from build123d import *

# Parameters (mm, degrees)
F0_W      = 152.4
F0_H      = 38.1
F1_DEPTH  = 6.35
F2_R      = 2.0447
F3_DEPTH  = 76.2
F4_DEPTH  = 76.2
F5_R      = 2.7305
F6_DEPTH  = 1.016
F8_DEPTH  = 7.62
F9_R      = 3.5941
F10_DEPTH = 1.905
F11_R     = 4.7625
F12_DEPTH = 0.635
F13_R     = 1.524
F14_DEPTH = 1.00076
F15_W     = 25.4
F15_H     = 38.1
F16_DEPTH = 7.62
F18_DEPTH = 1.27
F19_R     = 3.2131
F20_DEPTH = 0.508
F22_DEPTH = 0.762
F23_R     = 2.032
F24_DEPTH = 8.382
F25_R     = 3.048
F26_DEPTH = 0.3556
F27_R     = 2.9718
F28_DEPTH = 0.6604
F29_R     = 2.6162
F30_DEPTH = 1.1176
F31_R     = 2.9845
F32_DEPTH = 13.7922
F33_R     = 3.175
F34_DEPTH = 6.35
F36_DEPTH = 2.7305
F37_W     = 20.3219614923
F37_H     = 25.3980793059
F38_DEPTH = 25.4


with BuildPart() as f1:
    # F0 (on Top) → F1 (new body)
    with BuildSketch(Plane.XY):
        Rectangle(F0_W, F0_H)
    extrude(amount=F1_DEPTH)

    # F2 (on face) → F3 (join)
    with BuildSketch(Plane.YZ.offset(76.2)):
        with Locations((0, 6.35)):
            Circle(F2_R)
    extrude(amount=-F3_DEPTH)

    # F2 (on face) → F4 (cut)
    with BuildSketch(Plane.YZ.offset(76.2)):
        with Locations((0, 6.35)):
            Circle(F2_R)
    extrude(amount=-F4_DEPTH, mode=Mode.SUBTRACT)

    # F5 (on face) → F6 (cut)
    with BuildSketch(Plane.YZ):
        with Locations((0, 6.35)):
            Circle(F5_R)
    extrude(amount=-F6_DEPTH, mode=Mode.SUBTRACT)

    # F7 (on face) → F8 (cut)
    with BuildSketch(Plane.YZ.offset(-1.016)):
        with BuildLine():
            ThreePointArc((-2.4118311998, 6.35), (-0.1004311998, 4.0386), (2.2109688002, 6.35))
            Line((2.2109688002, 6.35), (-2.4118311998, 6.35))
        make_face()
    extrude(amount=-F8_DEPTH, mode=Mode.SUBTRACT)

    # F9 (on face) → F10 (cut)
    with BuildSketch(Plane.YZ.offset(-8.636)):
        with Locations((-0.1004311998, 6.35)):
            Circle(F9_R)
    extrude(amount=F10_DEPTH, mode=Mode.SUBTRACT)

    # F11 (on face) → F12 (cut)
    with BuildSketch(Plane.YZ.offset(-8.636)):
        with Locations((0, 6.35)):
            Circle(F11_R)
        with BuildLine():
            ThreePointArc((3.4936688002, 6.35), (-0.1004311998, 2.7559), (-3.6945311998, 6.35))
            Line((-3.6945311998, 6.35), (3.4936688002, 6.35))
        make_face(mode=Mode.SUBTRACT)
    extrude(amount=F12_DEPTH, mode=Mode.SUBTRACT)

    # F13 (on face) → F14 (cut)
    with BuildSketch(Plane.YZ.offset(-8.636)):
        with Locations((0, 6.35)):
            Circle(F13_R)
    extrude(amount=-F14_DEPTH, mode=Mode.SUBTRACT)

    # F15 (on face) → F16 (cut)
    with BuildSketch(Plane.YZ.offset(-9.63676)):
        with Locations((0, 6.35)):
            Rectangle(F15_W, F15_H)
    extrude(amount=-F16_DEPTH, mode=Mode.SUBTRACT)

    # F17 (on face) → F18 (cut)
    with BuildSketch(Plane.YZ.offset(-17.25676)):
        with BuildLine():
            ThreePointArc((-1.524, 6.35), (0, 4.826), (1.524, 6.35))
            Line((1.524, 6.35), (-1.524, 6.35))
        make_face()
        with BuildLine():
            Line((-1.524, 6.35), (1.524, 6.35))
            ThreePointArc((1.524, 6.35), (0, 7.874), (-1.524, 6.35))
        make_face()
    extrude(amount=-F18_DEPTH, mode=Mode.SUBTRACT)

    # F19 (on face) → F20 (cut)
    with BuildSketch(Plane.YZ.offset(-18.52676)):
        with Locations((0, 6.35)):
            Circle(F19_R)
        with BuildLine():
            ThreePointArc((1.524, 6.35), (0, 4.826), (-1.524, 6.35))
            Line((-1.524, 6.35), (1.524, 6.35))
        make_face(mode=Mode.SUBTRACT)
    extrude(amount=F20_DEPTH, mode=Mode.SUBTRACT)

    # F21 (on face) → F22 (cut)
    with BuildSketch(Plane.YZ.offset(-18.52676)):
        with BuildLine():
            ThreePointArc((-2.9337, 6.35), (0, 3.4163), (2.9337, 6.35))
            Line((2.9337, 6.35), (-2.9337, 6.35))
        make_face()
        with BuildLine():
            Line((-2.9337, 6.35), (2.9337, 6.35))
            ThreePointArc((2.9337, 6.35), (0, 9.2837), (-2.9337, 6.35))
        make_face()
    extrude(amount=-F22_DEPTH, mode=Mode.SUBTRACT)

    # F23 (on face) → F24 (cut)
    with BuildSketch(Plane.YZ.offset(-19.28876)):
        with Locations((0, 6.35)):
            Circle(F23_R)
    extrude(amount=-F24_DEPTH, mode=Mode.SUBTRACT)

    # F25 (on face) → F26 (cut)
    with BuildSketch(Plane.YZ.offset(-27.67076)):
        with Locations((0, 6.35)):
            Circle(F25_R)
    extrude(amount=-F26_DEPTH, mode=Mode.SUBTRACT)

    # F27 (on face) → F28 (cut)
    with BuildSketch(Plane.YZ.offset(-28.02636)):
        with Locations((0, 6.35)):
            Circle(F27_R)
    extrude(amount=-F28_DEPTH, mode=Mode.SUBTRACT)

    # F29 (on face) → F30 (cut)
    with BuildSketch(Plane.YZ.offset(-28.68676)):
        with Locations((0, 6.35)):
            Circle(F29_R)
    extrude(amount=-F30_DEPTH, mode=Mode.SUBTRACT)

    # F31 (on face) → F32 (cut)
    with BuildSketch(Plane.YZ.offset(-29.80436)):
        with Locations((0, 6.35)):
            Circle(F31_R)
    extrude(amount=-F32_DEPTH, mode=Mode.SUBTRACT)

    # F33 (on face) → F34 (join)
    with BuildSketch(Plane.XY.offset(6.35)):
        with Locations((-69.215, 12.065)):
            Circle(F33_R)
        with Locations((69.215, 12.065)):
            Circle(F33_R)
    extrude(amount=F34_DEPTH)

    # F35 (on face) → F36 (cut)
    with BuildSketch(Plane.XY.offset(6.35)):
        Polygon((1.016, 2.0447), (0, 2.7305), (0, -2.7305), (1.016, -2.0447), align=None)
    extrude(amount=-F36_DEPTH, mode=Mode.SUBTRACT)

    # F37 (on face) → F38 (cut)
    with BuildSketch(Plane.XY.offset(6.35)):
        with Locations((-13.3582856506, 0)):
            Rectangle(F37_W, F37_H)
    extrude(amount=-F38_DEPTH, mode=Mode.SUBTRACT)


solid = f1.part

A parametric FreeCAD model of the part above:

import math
import FreeCAD as App
import Part
import Sketcher

V = App.Vector
Q = App.Units.Quantity


def add_polygon(sketch, points):
    """Adds a closed chain of lines whose ends are joined by coincident constraints."""
    first, n = sketch.GeometryCount, len(points)
    for a, b in zip(points, points[1:] + points[:1]):
        sketch.addGeometry(Part.LineSegment(App.Vector(*a, 0), App.Vector(*b, 0)), False)
    for i in range(n):
        sketch.addConstraint(Sketcher.Constraint("Coincident", first + i, 2, first + (i + 1) % n, 1))

doc = App.newDocument("Part")
body = doc.addObject("PartDesign::Body", "Body")

# Sketch on XY plane
sketch1 = doc.addObject("Sketcher::SketchObject", "Sketch")
body.addObject(sketch1)
sketch1.AttachmentSupport = (doc.XY_Plane, [""])
sketch1.MapMode = "FlatFace"
add_polygon(sketch1, [(-76, 19), (-76, -19), (76, -19), (76, 19)])  # lines 0-3
sketch1.addConstraint(Sketcher.Constraint("Vertical", 0))
sketch1.addConstraint(Sketcher.Constraint("Horizontal", 1))
sketch1.addConstraint(Sketcher.Constraint("Vertical", 2))
sketch1.addConstraint(Sketcher.Constraint("Horizontal", 3))
sketch1.addConstraint(Sketcher.Constraint("Symmetric", 0, 2, 2, 2, -1, 1))
sketch1.addConstraint(Sketcher.Constraint("DistanceX", 1, 1, 1, 2, Q("6 in")))
sketch1.addConstraint(Sketcher.Constraint("DistanceY", 0, 2, 0, 1, Q("1.5 in")))
pad1 = doc.addObject("PartDesign::Pad", "Pad")
body.addObject(pad1)
pad1.Profile = sketch1
pad1.Length = Q("0.25 in")

# Sketch on YZ plane
sketch2 = doc.addObject("Sketcher::SketchObject", "Sketch001")
body.addObject(sketch2)
sketch2.AttachmentSupport = (doc.YZ_Plane, [""])
sketch2.MapMode = "FlatFace"
sketch2.AttachmentOffset = App.Placement(V(0, 0, 3 * 25.4), App.Rotation())
sketch2.addGeometry(Part.Circle(V(0, 6.3, 0), V(0, 0, 1), 2), False)
sketch2.addConstraint(Sketcher.Constraint("PointOnObject", 0, 3, -2))
sketch2.addConstraint(Sketcher.Constraint("Diameter", 0, Q("0.161 in")))
sketch2.addConstraint(Sketcher.Constraint("DistanceY", -1, 1, 0, 3, Q("0.25 in")))
pad2 = doc.addObject("PartDesign::Pad", "Pad001")
body.addObject(pad2)
pad2.Profile = sketch2
pad2.Length = Q("3 in")
pad2.Reversed = True

# Sketch on YZ plane
sketch3 = doc.addObject("Sketcher::SketchObject", "Sketch002")
body.addObject(sketch3)
sketch3.AttachmentSupport = (doc.YZ_Plane, [""])
sketch3.MapMode = "FlatFace"
sketch3.AttachmentOffset = App.Placement(V(0, 0, 3 * 25.4), App.Rotation())
sketch3.addGeometry(Part.Circle(V(0, 6.3, 0), V(0, 0, 1), 2), False)
sketch3.addConstraint(Sketcher.Constraint("PointOnObject", 0, 3, -2))
sketch3.addConstraint(Sketcher.Constraint("Diameter", 0, Q("0.161 in")))
sketch3.addConstraint(Sketcher.Constraint("DistanceY", -1, 1, 0, 3, Q("0.25 in")))
pocket1 = doc.addObject("PartDesign::Pocket", "Pocket")
body.addObject(pocket1)
pocket1.Profile = sketch3
pocket1.Length = Q("3 in")

# Sketch on YZ plane
sketch4 = doc.addObject("Sketcher::SketchObject", "Sketch003")
body.addObject(sketch4)
sketch4.AttachmentSupport = (doc.YZ_Plane, [""])
sketch4.MapMode = "FlatFace"
sketch4.addGeometry(Part.Circle(V(0, 6.3, 0), V(0, 0, 1), 2.7), False)
sketch4.addConstraint(Sketcher.Constraint("PointOnObject", 0, 3, -2))
sketch4.addConstraint(Sketcher.Constraint("Diameter", 0, Q("0.215 in")))
sketch4.addConstraint(Sketcher.Constraint("DistanceY", -1, 1, 0, 3, Q("0.25 in")))
pocket2 = doc.addObject("PartDesign::Pocket", "Pocket001")
body.addObject(pocket2)
pocket2.Profile = sketch4
pocket2.Length = Q("0.04 in")

# Sketch on YZ plane
sketch5 = doc.addObject("Sketcher::SketchObject", "Sketch004")
body.addObject(sketch5)
sketch5.AttachmentSupport = (doc.YZ_Plane, [""])
sketch5.MapMode = "FlatFace"
sketch5.AttachmentOffset = App.Placement(V(0, 0, -0.04 * 25.4), App.Rotation())
sketch5.addGeometry(Part.ArcOfCircle(Part.Circle(V(-0.1, 6.3, 0), V(0, 0, 1), 2.3), math.radians(180), math.radians(360)), False)
sketch5.addGeometry(Part.LineSegment(V(2.2, 6.3, 0), V(-2.4, 6.3, 0)), False)
sketch5.addConstraint(Sketcher.Constraint("Coincident", 0, 1, 1, 2))
sketch5.addConstraint(Sketcher.Constraint("Coincident", 1, 1, 0, 2))
sketch5.addConstraint(Sketcher.Constraint("Horizontal", 1))
sketch5.addConstraint(Sketcher.Constraint("Radius", 0, Q("0.091 in")))
sketch5.addConstraint(Sketcher.Constraint("DistanceY", -1, 1, 0, 3, Q("0.25 in")))
sketch5.addConstraint(Sketcher.Constraint("DistanceY", -1, 1, 0, 1, Q("0.25 in")))
sketch5.addConstraint(Sketcher.Constraint("DistanceX", 0, 3, -1, 1, Q("0.100431 mm")))
pocket3 = doc.addObject("PartDesign::Pocket", "Pocket002")
body.addObject(pocket3)
pocket3.Profile = sketch5
pocket3.Length = Q("0.3 in")

# Sketch on YZ plane
sketch6 = doc.addObject("Sketcher::SketchObject", "Sketch005")
body.addObject(sketch6)
sketch6.AttachmentSupport = (doc.YZ_Plane, [""])
sketch6.MapMode = "FlatFace"
sketch6.AttachmentOffset = App.Placement(V(0, 0, -0.34 * 25.4), App.Rotation())
sketch6.addGeometry(Part.Circle(V(-0.1, 6.3, 0), V(0, 0, 1), 3.6), False)
sketch6.addConstraint(Sketcher.Constraint("Diameter", 0, Q("0.283 in")))
sketch6.addConstraint(Sketcher.Constraint("DistanceY", -1, 1, 0, 3, Q("0.25 in")))
sketch6.addConstraint(Sketcher.Constraint("DistanceX", 0, 3, -1, 1, Q("0.100431 mm")))
pocket4 = doc.addObject("PartDesign::Pocket", "Pocket003")
body.addObject(pocket4)
pocket4.Profile = sketch6
pocket4.Length = Q("0.075 in")
pocket4.Reversed = True

# Sketch on YZ plane
sketch7 = doc.addObject("Sketcher::SketchObject", "Sketch006")
body.addObject(sketch7)
sketch7.AttachmentSupport = (doc.YZ_Plane, [""])
sketch7.MapMode = "FlatFace"
sketch7.AttachmentOffset = App.Placement(V(0, 0, -0.34 * 25.4), App.Rotation())
sketch7.addGeometry(Part.Circle(V(0, 6.3, 0), V(0, 0, 1), 4.8), False)
sketch7.addGeometry(Part.LineSegment(V(-3.7, 6.3, 0), V(3.5, 6.3, 0)), False)
sketch7.addGeometry(Part.ArcOfCircle(Part.Circle(V(-0.1, 6.3, 0), V(0, 0, 1), 3.6), math.radians(180), math.radians(360)), False)
sketch7.addConstraint(Sketcher.Constraint("Coincident", 1, 1, 2, 1))
sketch7.addConstraint(Sketcher.Constraint("Coincident", 2, 2, 1, 2))
sketch7.addConstraint(Sketcher.Constraint("Horizontal", 1))
sketch7.addConstraint(Sketcher.Constraint("PointOnObject", 0, 3, -2))
sketch7.addConstraint(Sketcher.Constraint("Horizontal", 0, 3, 2, 3))
sketch7.addConstraint(Sketcher.Constraint("Horizontal", 2, 3, 1, 1))
sketch7.addConstraint(Sketcher.Constraint("Diameter", 0, Q("0.375 in")))
sketch7.addConstraint(Sketcher.Constraint("Radius", 2, Q("0.1415 in")))
sketch7.addConstraint(Sketcher.Constraint("DistanceY", -1, 1, 0, 3, Q("0.25 in")))
sketch7.addConstraint(Sketcher.Constraint("DistanceX", 2, 3, -1, 1, Q("0.100431 mm")))
pocket5 = doc.addObject("PartDesign::Pocket", "Pocket004")
body.addObject(pocket5)
pocket5.Profile = sketch7
pocket5.Length = Q("0.025 in")
pocket5.Reversed = True

# Sketch on YZ plane
sketch8 = doc.addObject("Sketcher::SketchObject", "Sketch007")
body.addObject(sketch8)
sketch8.AttachmentSupport = (doc.YZ_Plane, [""])
sketch8.MapMode = "FlatFace"
sketch8.AttachmentOffset = App.Placement(V(0, 0, -0.34 * 25.4), App.Rotation())
sketch8.addGeometry(Part.Circle(V(0, 6.3, 0), V(0, 0, 1), 1.5), False)
sketch8.addConstraint(Sketcher.Constraint("PointOnObject", 0, 3, -2))
sketch8.addConstraint(Sketcher.Constraint("Diameter", 0, Q("0.12 in")))
sketch8.addConstraint(Sketcher.Constraint("DistanceY", -1, 1, 0, 3, Q("0.25 in")))
pocket6 = doc.addObject("PartDesign::Pocket", "Pocket005")
body.addObject(pocket6)
pocket6.Profile = sketch8
pocket6.Length = Q("0.0394 in")

# Sketch on YZ plane
sketch9 = doc.addObject("Sketcher::SketchObject", "Sketch008")
body.addObject(sketch9)
sketch9.AttachmentSupport = (doc.YZ_Plane, [""])
sketch9.MapMode = "FlatFace"
sketch9.AttachmentOffset = App.Placement(V(0, 0, -0.3794 * 25.4), App.Rotation())
add_polygon(sketch9, [(-13, 25), (-13, -13), (13, -13), (13, 25)])  # lines 0-3
sketch9.addConstraint(Sketcher.Constraint("Vertical", 0))
sketch9.addConstraint(Sketcher.Constraint("Horizontal", 1))
sketch9.addConstraint(Sketcher.Constraint("Vertical", 2))
sketch9.addConstraint(Sketcher.Constraint("Horizontal", 3))
sketch9.addConstraint(Sketcher.Constraint("DistanceX", 1, 1, 1, 2, Q("1 in")))
sketch9.addConstraint(Sketcher.Constraint("DistanceY", 0, 2, 0, 1, Q("1.5 in")))
sketch9.addConstraint(Sketcher.Constraint("DistanceY", -1, 1, 2, 2, Q("1 in")))
sketch9.addConstraint(Sketcher.Constraint("DistanceX", 0, 2, -1, 1, Q("0.5 in")))
pocket7 = doc.addObject("PartDesign::Pocket", "Pocket006")
body.addObject(pocket7)
pocket7.Profile = sketch9
pocket7.Length = Q("0.3 in")

# Sketch on YZ plane
sketch10 = doc.addObject("Sketcher::SketchObject", "Sketch009")
body.addObject(sketch10)
sketch10.AttachmentSupport = (doc.YZ_Plane, [""])
sketch10.MapMode = "FlatFace"
sketch10.AttachmentOffset = App.Placement(V(0, 0, -0.6794 * 25.4), App.Rotation())
sketch10.addGeometry(Part.Circle(V(0, 6.3, 0), V(0, 0, 1), 1.5), False)
sketch10.addConstraint(Sketcher.Constraint("PointOnObject", 0, 3, -2))
sketch10.addConstraint(Sketcher.Constraint("Diameter", 0, Q("0.12 in")))
sketch10.addConstraint(Sketcher.Constraint("DistanceY", -1, 1, 0, 3, Q("0.25 in")))
pocket8 = doc.addObject("PartDesign::Pocket", "Pocket007")
body.addObject(pocket8)
pocket8.Profile = sketch10
pocket8.Length = Q("0.05 in")

# Sketch on YZ plane
sketch11 = doc.addObject("Sketcher::SketchObject", "Sketch010")
body.addObject(sketch11)
sketch11.AttachmentSupport = (doc.YZ_Plane, [""])
sketch11.MapMode = "FlatFace"
sketch11.AttachmentOffset = App.Placement(V(0, 0, -0.7294 * 25.4), App.Rotation())
sketch11.addGeometry(Part.Circle(V(0, 6.3, 0), V(0, 0, 1), 3.2), False)
sketch11.addGeometry(Part.LineSegment(V(-1.5, 6.3, 0), V(1.5, 6.3, 0)), False)
sketch11.addGeometry(Part.ArcOfCircle(Part.Circle(V(0, 6.3, 0), V(0, 0, 1), 1.5), math.radians(180), math.radians(360)), False)
sketch11.addConstraint(Sketcher.Constraint("Coincident", 1, 1, 2, 1))
sketch11.addConstraint(Sketcher.Constraint("Coincident", 2, 2, 1, 2))
sketch11.addConstraint(Sketcher.Constraint("Horizontal", 1))
sketch11.addConstraint(Sketcher.Constraint("Coincident", 2, 3, 0, 3))
sketch11.addConstraint(Sketcher.Constraint("PointOnObject", 0, 3, -2))
sketch11.addConstraint(Sketcher.Constraint("Horizontal", 2, 3, 1, 1))
sketch11.addConstraint(Sketcher.Constraint("Radius", 2, Q("0.06 in")))
sketch11.addConstraint(Sketcher.Constraint("Diameter", 0, Q("0.253 in")))
sketch11.addConstraint(Sketcher.Constraint("DistanceY", -1, 1, 0, 3, Q("0.25 in")))
pocket9 = doc.addObject("PartDesign::Pocket", "Pocket008")
body.addObject(pocket9)
pocket9.Profile = sketch11
pocket9.Length = Q("0.02 in")
pocket9.Reversed = True

# Sketch on YZ plane
sketch12 = doc.addObject("Sketcher::SketchObject", "Sketch011")
body.addObject(sketch12)
sketch12.AttachmentSupport = (doc.YZ_Plane, [""])
sketch12.MapMode = "FlatFace"
sketch12.AttachmentOffset = App.Placement(V(0, 0, -0.7294 * 25.4), App.Rotation())
sketch12.addGeometry(Part.Circle(V(0, 6.3, 0), V(0, 0, 1), 2.9), False)
sketch12.addConstraint(Sketcher.Constraint("PointOnObject", 0, 3, -2))
sketch12.addConstraint(Sketcher.Constraint("Diameter", 0, Q("0.231 in")))
sketch12.addConstraint(Sketcher.Constraint("DistanceY", -1, 1, 0, 3, Q("0.25 in")))
pocket10 = doc.addObject("PartDesign::Pocket", "Pocket009")
body.addObject(pocket10)
pocket10.Profile = sketch12
pocket10.Length = Q("0.03 in")

# Sketch on YZ plane
sketch13 = doc.addObject("Sketcher::SketchObject", "Sketch012")
body.addObject(sketch13)
sketch13.AttachmentSupport = (doc.YZ_Plane, [""])
sketch13.MapMode = "FlatFace"
sketch13.AttachmentOffset = App.Placement(V(0, 0, -0.7594 * 25.4), App.Rotation())
sketch13.addGeometry(Part.Circle(V(0, 6.3, 0), V(0, 0, 1), 2), False)
sketch13.addConstraint(Sketcher.Constraint("PointOnObject", 0, 3, -2))
sketch13.addConstraint(Sketcher.Constraint("Diameter", 0, Q("0.16 in")))
sketch13.addConstraint(Sketcher.Constraint("DistanceY", -1, 1, 0, 3, Q("0.25 in")))
pocket11 = doc.addObject("PartDesign::Pocket", "Pocket010")
body.addObject(pocket11)
pocket11.Profile = sketch13
pocket11.Length = Q("0.33 in")

# Sketch on YZ plane
sketch14 = doc.addObject("Sketcher::SketchObject", "Sketch013")
body.addObject(sketch14)
sketch14.AttachmentSupport = (doc.YZ_Plane, [""])
sketch14.MapMode = "FlatFace"
sketch14.AttachmentOffset = App.Placement(V(0, 0, -1.0894 * 25.4), App.Rotation())
sketch14.addGeometry(Part.Circle(V(0, 6.3, 0), V(0, 0, 1), 3), False)
sketch14.addConstraint(Sketcher.Constraint("PointOnObject", 0, 3, -2))
sketch14.addConstraint(Sketcher.Constraint("Diameter", 0, Q("0.24 in")))
sketch14.addConstraint(Sketcher.Constraint("DistanceY", -1, 1, 0, 3, Q("0.25 in")))
pocket12 = doc.addObject("PartDesign::Pocket", "Pocket011")
body.addObject(pocket12)
pocket12.Profile = sketch14
pocket12.Length = Q("0.014 in")

# Sketch on YZ plane
sketch15 = doc.addObject("Sketcher::SketchObject", "Sketch014")
body.addObject(sketch15)
sketch15.AttachmentSupport = (doc.YZ_Plane, [""])
sketch15.MapMode = "FlatFace"
sketch15.AttachmentOffset = App.Placement(V(0, 0, -1.1034 * 25.4), App.Rotation())
sketch15.addGeometry(Part.Circle(V(0, 6.3, 0), V(0, 0, 1), 3), False)
sketch15.addConstraint(Sketcher.Constraint("PointOnObject", 0, 3, -2))
sketch15.addConstraint(Sketcher.Constraint("Diameter", 0, Q("0.234 in")))
sketch15.addConstraint(Sketcher.Constraint("DistanceY", -1, 1, 0, 3, Q("0.25 in")))
pocket13 = doc.addObject("PartDesign::Pocket", "Pocket012")
body.addObject(pocket13)
pocket13.Profile = sketch15
pocket13.Length = Q("0.026 in")

# Sketch on YZ plane
sketch16 = doc.addObject("Sketcher::SketchObject", "Sketch015")
body.addObject(sketch16)
sketch16.AttachmentSupport = (doc.YZ_Plane, [""])
sketch16.MapMode = "FlatFace"
sketch16.AttachmentOffset = App.Placement(V(0, 0, -1.1294 * 25.4), App.Rotation())
sketch16.addGeometry(Part.Circle(V(0, 6.3, 0), V(0, 0, 1), 2.6), False)
sketch16.addConstraint(Sketcher.Constraint("PointOnObject", 0, 3, -2))
sketch16.addConstraint(Sketcher.Constraint("Diameter", 0, Q("0.206 in")))
sketch16.addConstraint(Sketcher.Constraint("DistanceY", -1, 1, 0, 3, Q("0.25 in")))
pocket14 = doc.addObject("PartDesign::Pocket", "Pocket013")
body.addObject(pocket14)
pocket14.Profile = sketch16
pocket14.Length = Q("0.044 in")

# Sketch on YZ plane
sketch17 = doc.addObject("Sketcher::SketchObject", "Sketch016")
body.addObject(sketch17)
sketch17.AttachmentSupport = (doc.YZ_Plane, [""])
sketch17.MapMode = "FlatFace"
sketch17.AttachmentOffset = App.Placement(V(0, 0, -1.1734 * 25.4), App.Rotation())
sketch17.addGeometry(Part.Circle(V(0, 6.3, 0), V(0, 0, 1), 3), False)
sketch17.addConstraint(Sketcher.Constraint("PointOnObject", 0, 3, -2))
sketch17.addConstraint(Sketcher.Constraint("Diameter", 0, Q("0.235 in")))
sketch17.addConstraint(Sketcher.Constraint("DistanceY", -1, 1, 0, 3, Q("0.25 in")))
pocket15 = doc.addObject("PartDesign::Pocket", "Pocket014")
body.addObject(pocket15)
pocket15.Profile = sketch17
pocket15.Length = Q("0.543 in")

# Sketch on XY plane
sketch18 = doc.addObject("Sketcher::SketchObject", "Sketch017")
body.addObject(sketch18)
sketch18.AttachmentSupport = (doc.XY_Plane, [""])
sketch18.MapMode = "FlatFace"
sketch18.AttachmentOffset = App.Placement(V(0, 0, 0.25 * 25.4), App.Rotation())
sketch18.addGeometry(Part.Circle(V(-69.2, 12.1, 0), V(0, 0, 1), 3.2), False)
sketch18.addGeometry(Part.Circle(V(69.2, 12.1, 0), V(0, 0, 1), 3.2), False)
sketch18.addConstraint(Sketcher.Constraint("Equal", 0, 1))
sketch18.addConstraint(Sketcher.Constraint("Symmetric", 0, 3, 1, 3, -2))
sketch18.addConstraint(Sketcher.Constraint("Diameter", 0, Q("0.25 in")))
sketch18.addConstraint(Sketcher.Constraint("DistanceX", 0, 3, 1, 3, Q("5.45 in")))
sketch18.addConstraint(Sketcher.Constraint("DistanceY", -1, 1, 0, 3, Q("0.475 in")))
pad3 = doc.addObject("PartDesign::Pad", "Pad002")
body.addObject(pad3)
pad3.Profile = sketch18
pad3.Length = Q("0.25 in")

# Sketch on XY plane
sketch19 = doc.addObject("Sketcher::SketchObject", "Sketch018")
body.addObject(sketch19)
sketch19.AttachmentSupport = (doc.XY_Plane, [""])
sketch19.MapMode = "FlatFace"
sketch19.AttachmentOffset = App.Placement(V(0, 0, 0.25 * 25.4), App.Rotation())
add_polygon(sketch19, [(1, 2), (0, 2.7), (0, -2.7), (1, -2)])  # lines 0-3
sketch19.addConstraint(Sketcher.Constraint("Vertical", 1))
sketch19.addConstraint(Sketcher.Constraint("Vertical", 3))
sketch19.addConstraint(Sketcher.Constraint("Symmetric", 0, 2, 1, 2, -1, 1))
sketch19.addConstraint(Sketcher.Constraint("Equal", 0, 2))
sketch19.addConstraint(Sketcher.Constraint("DistanceY", 1, 2, 1, 1, Q("0.215 in")))
sketch19.addConstraint(Sketcher.Constraint("DistanceY", 3, 1, 3, 2, Q("0.161 in")))
sketch19.addConstraint(Sketcher.Constraint("DistanceX", -1, 1, 2, 2, Q("0.04 in")))
pocket16 = doc.addObject("PartDesign::Pocket", "Pocket015")
body.addObject(pocket16)
pocket16.Profile = sketch19
pocket16.Length = Q("0.1075 in")

# Sketch on XY plane
sketch20 = doc.addObject("Sketcher::SketchObject", "Sketch019")
body.addObject(sketch20)
sketch20.AttachmentSupport = (doc.XY_Plane, [""])
sketch20.MapMode = "FlatFace"
sketch20.AttachmentOffset = App.Placement(V(0, 0, 0.25 * 25.4), App.Rotation())
add_polygon(sketch20, [(-24, 13), (-24, -13), (-3, -13), (-3, 13)])  # lines 0-3
sketch20.addConstraint(Sketcher.Constraint("Vertical", 0))
sketch20.addConstraint(Sketcher.Constraint("Horizontal", 1))
sketch20.addConstraint(Sketcher.Constraint("Vertical", 2))
sketch20.addConstraint(Sketcher.Constraint("Horizontal", 3))
sketch20.addConstraint(Sketcher.Constraint("DistanceX", 1, 1, 1, 2, Q("20.321961 mm")))
sketch20.addConstraint(Sketcher.Constraint("DistanceY", 0, 2, 0, 1, Q("25.398079 mm")))
sketch20.addConstraint(Sketcher.Constraint("DistanceY", 0, 2, -1, 1, Q("12.69904 mm")))
sketch20.addConstraint(Sketcher.Constraint("DistanceX", 0, 2, -1, 1, Q("23.519266 mm")))
pocket17 = doc.addObject("PartDesign::Pocket", "Pocket016")
body.addObject(pocket17)
pocket17.Profile = sketch20
pocket17.Length = Q("1 in")

doc.recompute()
